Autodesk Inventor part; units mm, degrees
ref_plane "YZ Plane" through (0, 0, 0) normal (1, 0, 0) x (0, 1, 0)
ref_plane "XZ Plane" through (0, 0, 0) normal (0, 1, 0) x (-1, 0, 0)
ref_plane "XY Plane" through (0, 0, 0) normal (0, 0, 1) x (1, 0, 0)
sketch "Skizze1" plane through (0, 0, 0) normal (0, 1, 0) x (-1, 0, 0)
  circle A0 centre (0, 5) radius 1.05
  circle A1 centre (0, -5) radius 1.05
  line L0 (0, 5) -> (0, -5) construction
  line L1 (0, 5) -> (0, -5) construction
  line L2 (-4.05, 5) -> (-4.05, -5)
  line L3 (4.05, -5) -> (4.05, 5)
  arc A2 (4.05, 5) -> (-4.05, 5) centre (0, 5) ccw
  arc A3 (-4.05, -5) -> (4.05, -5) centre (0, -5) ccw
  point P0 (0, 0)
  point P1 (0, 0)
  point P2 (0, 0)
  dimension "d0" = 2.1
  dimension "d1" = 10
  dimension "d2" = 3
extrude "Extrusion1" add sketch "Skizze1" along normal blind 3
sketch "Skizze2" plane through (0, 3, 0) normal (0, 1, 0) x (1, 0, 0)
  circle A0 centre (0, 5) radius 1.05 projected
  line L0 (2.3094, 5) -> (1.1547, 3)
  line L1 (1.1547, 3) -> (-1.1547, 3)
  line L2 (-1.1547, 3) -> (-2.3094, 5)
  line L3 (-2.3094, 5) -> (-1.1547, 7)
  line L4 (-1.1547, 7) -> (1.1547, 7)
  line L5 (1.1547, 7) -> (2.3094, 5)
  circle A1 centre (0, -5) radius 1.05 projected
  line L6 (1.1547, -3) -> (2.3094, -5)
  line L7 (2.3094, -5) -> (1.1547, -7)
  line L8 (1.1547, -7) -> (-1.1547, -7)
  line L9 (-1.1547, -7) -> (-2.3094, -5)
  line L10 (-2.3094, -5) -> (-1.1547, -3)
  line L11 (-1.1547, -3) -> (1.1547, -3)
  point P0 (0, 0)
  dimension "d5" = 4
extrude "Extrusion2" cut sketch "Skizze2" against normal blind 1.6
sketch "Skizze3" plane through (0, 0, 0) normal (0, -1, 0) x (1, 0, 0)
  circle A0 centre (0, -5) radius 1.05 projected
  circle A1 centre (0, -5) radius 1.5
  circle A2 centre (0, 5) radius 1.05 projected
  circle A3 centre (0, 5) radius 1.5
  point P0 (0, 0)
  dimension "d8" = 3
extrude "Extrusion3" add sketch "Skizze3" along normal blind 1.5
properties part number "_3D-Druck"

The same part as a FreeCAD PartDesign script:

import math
import FreeCAD as App
import Part
import Sketcher
from FreeCAD import Vector
Q = App.Units.Quantity


def add_polygon(sketch, points):
    """Adds a closed chain of lines whose ends are joined by coincident constraints."""
    first, n = sketch.GeometryCount, len(points)
    for a, b in zip(points, points[1:] + points[:1]):
        sketch.addGeometry(Part.LineSegment(App.Vector(*a, 0), App.Vector(*b, 0)), False)
    for i in range(n):
        sketch.addConstraint(Sketcher.Constraint("Coincident", first + i, 2, first + (i + 1) % n, 1))

doc = App.newDocument("Part")
body = doc.addObject("PartDesign::Body", "Body")

sketch1 = body.newObject("Sketcher::SketchObject", "Sketch")
sketch1.AttachmentSupport = (doc.getObject("XZ_Plane"), [""])
sketch1.MapMode = "FlatFace"
sketch1.addGeometry(Part.ArcOfCircle(Part.Circle(Vector(0, 5, 0), Vector(0, 0, 1), 4), math.radians(0), math.radians(180)), False)
sketch1.addGeometry(Part.LineSegment(Vector(4, 5, 0), Vector(4, -5, 0)), False)
sketch1.addGeometry(Part.ArcOfCircle(Part.Circle(Vector(0, -5, 0), Vector(0, 0, 1), 4), math.radians(180), math.radians(360)), False)
sketch1.addGeometry(Part.LineSegment(Vector(-4, -5, 0), Vector(-4, 5, 0)), False)
sketch1.addGeometry(Part.Circle(Vector(0, -5, 0), Vector(0, 0, 1), 1.1), False)
sketch1.addGeometry(Part.Circle(Vector(0, 5, 0), Vector(0, 0, 1), 1.1), False)
sketch1.addConstraint(Sketcher.Constraint("Tangent", 0, 1, 1, 1))
sketch1.addConstraint(Sketcher.Constraint("Tangent", 1, 2, 2, 2))
sketch1.addConstraint(Sketcher.Constraint("Tangent", 2, 1, 3, 1))
sketch1.addConstraint(Sketcher.Constraint("Tangent", 3, 2, 0, 2))
sketch1.addConstraint(Sketcher.Constraint("Vertical", 1))
sketch1.addConstraint(Sketcher.Constraint("Vertical", 3))
sketch1.addConstraint(Sketcher.Constraint("Coincident", 4, 3, 2, 3))
sketch1.addConstraint(Sketcher.Constraint("Coincident", 5, 3, 0, 3))
sketch1.addConstraint(Sketcher.Constraint("Equal", 4, 5))
sketch1.addConstraint(Sketcher.Constraint("Symmetric", 0, 3, 2, 3, -1, 1))
sketch1.addConstraint(Sketcher.Constraint("Diameter", 4, Q("2.1 mm")))
sketch1.addConstraint(Sketcher.Constraint("DistanceY", 1, 2, 1, 1, Q("10 mm")))
sketch1.addConstraint(Sketcher.Constraint("Radius", 0, Q("4.05 mm")))
pad1 = body.newObject("PartDesign::Pad", "Pad")
pad1.Profile = sketch1
pad1.Length = 3
pad1.Reversed = True

sketch2 = body.newObject("Sketcher::SketchObject", "Sketch001")
sketch2.AttachmentSupport = (doc.getObject("XZ_Plane"), [""])
sketch2.MapMode = "FlatFace"
sketch2.AttachmentOffset = App.Placement(Vector(0, 0, -3), App.Rotation())
add_polygon(sketch2, [(1.2, -3), (2.3, -5), (1.2, -7), (-1.2, -7), (-2.3, -5), (-1.2, -3)])
sketch2.addGeometry(Part.Circle(Vector(0, -5, 0), Vector(0, 0, 1), 1.1), False)
add_polygon(sketch2, [(2.3, 5), (1.2, 3), (-1.2, 3), (-2.3, 5), (-1.2, 7), (1.2, 7)])
sketch2.addGeometry(Part.Circle(Vector(0, 5, 0), Vector(0, 0, 1), 1.1), False)
sketch2.addConstraint(Sketcher.Constraint("Horizontal", 2))
sketch2.addConstraint(Sketcher.Constraint("Horizontal", 5))
sketch2.addConstraint(Sketcher.Constraint("Horizontal", 8))
sketch2.addConstraint(Sketcher.Constraint("Horizontal", 11))
sketch2.addConstraint(Sketcher.Constraint("Equal", 6, 13))
sketch2.addConstraint(Sketcher.Constraint("Symmetric", 6, 3, 13, 3, -1, 1))
sketch2.addConstraint(Sketcher.Constraint("Symmetric", 4, 2, 7, 2, -1, 1))
sketch2.addConstraint(Sketcher.Constraint("Symmetric", 0, 2, 9, 2, -1, 1))
sketch2.addConstraint(Sketcher.Constraint("Symmetric", 1, 2, 10, 2, -1, 1))
sketch2.addConstraint(Sketcher.Constraint("Symmetric", 3, 2, 12, 2, -1, 1))
sketch2.addConstraint(Sketcher.Constraint("Symmetric", 0, 2, 3, 2, -2))
sketch2.addConstraint(Sketcher.Constraint("PointOnObject", 6, 3, -2))
sketch2.addConstraint(Sketcher.Constraint("Parallel", 0, 3))
sketch2.addConstraint(Sketcher.Constraint("Parallel", 1, 4))
sketch2.addConstraint(Sketcher.Constraint("Parallel", 3, 9))
sketch2.addConstraint(Sketcher.Constraint("Parallel", 9, 12))
sketch2.addConstraint(Sketcher.Constraint("Horizontal", 6, 3, 0, 2))
sketch2.addConstraint(Sketcher.Constraint("Vertical", 2, 2, 4, 2))
sketch2.addConstraint(Sketcher.Constraint("Vertical", 1, 2, 5, 2))
sketch2.addConstraint(Sketcher.Constraint("DistanceY", 2, 2, 4, 2, Q("4 mm")))
sketch2.addConstraint(Sketcher.Constraint("Diameter", 6, Q("2.1 mm")))
sketch2.addConstraint(Sketcher.Constraint("Angle", 0, Q("-60 deg")))
sketch2.addConstraint(Sketcher.Constraint("DistanceY", 6, 3, -1, 1, Q("5 mm")))
sketch2.addConstraint(Sketcher.Constraint("DistanceX", 2, 2, 2, 1, Q("2.3094 mm")))
pocket1 = body.newObject("PartDesign::Pocket", "Pocket")
pocket1.Profile = sketch2
pocket1.Length = 1.6
pocket1.Reversed = True

sketch3 = body.newObject("Sketcher::SketchObject", "Sketch002")
sketch3.AttachmentSupport = (doc.getObject("XZ_Plane"), [""])
sketch3.MapMode = "FlatFace"
sketch3.addGeometry(Part.Circle(Vector(0, -5, 0), Vector(0, 0, 1), 1.5), False)
sketch3.addGeometry(Part.Circle(Vector(0, -5, 0), Vector(0, 0, 1), 1.1), False)
sketch3.addGeometry(Part.Circle(Vector(0, 5, 0), Vector(0, 0, 1), 1.5), False)
sketch3.addGeometry(Part.Circle(Vector(0, 5, 0), Vector(0, 0, 1), 1.1), False)
sketch3.addConstraint(Sketcher.Constraint("Coincident", 1, 3, 0, 3))
sketch3.addConstraint(Sketcher.Constraint("Coincident", 3, 3, 2, 3))
sketch3.addConstraint(Sketcher.Constraint("Equal", 0, 2))
sketch3.addConstraint(Sketcher.Constraint("Equal", 1, 3))
sketch3.addConstraint(Sketcher.Constraint("Symmetric", 0, 3, 2, 3, -1, 1))
sketch3.addConstraint(Sketcher.Constraint("PointOnObject", 0, 3, -2))
sketch3.addConstraint(Sketcher.Constraint("Diameter", 0, Q("3 mm")))
sketch3.addConstraint(Sketcher.Constraint("Diameter", 1, Q("2.1 mm")))
sketch3.addConstraint(Sketcher.Constraint("DistanceY", 0, 3, -1, 1, Q("5 mm")))
pad2 = body.newObject("PartDesign::Pad", "Pad001")
pad2.Profile = sketch3
pad2.Length = 1.5

doc.recompute()
